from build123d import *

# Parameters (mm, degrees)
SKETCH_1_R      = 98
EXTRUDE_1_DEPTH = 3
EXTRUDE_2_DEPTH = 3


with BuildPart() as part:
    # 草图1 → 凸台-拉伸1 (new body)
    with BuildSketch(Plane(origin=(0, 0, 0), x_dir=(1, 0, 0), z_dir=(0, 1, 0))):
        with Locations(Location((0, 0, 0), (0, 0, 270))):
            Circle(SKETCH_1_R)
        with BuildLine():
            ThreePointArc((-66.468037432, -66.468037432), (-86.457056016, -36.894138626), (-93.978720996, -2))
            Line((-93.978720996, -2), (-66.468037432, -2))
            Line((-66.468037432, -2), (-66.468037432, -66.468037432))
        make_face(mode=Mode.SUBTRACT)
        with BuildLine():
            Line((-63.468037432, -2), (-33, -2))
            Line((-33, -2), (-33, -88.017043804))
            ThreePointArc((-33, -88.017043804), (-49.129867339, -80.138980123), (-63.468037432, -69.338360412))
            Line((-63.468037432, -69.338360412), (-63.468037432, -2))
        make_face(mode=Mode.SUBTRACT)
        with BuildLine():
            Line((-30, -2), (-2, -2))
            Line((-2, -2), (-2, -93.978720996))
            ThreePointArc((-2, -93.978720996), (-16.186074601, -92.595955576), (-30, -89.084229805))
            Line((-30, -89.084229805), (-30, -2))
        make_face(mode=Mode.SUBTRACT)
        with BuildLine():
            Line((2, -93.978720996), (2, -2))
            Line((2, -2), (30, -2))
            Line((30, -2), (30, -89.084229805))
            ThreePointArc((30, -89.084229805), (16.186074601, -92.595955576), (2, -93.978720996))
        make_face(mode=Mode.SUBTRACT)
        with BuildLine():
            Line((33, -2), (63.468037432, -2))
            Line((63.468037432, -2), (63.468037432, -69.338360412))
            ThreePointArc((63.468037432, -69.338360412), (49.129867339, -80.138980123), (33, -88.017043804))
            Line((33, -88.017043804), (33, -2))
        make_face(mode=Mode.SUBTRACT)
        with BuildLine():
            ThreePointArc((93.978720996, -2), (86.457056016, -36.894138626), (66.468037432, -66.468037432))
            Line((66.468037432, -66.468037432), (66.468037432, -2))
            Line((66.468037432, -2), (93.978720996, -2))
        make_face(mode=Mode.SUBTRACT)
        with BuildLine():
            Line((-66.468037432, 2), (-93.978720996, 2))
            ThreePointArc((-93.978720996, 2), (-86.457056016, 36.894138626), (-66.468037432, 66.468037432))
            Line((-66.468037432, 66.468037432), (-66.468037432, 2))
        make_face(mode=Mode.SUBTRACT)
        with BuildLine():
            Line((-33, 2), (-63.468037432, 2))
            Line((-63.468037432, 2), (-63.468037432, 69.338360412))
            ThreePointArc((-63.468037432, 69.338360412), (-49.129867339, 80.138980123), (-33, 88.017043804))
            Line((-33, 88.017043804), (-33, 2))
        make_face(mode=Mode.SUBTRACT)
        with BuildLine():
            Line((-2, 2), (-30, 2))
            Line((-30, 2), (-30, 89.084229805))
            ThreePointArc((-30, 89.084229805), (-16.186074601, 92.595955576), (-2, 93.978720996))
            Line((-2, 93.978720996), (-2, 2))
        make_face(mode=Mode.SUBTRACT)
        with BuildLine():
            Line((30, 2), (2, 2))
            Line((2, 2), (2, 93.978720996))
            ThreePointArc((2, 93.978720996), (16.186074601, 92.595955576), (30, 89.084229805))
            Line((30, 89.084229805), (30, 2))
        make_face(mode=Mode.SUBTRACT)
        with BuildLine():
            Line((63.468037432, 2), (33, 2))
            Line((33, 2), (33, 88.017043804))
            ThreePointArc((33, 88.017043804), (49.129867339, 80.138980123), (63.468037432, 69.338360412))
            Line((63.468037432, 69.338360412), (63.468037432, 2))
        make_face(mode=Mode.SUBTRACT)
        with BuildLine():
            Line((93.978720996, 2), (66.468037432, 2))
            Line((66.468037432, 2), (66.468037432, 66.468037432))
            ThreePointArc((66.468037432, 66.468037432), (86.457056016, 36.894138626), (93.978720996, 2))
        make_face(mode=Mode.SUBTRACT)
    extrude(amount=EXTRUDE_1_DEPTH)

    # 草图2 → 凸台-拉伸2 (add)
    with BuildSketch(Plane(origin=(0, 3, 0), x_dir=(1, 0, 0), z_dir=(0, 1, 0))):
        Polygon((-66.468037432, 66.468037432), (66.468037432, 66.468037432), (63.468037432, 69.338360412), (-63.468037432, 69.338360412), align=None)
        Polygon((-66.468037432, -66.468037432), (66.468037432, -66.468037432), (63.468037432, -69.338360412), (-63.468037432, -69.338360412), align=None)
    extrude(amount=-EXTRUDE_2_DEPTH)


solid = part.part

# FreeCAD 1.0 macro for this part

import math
import FreeCAD as App
import Part
import Sketcher


def add_polygon(sketch, points):
    """Adds a closed chain of lines whose ends are joined by coincident constraints."""
    first, n = sketch.GeometryCount, len(points)
    for a, b in zip(points, points[1:] + points[:1]):
        sketch.addGeometry(Part.LineSegment(App.Vector(*a, 0), App.Vector(*b, 0)), False)
    for i in range(n):
        sketch.addConstraint(Sketcher.Constraint("Coincident", first + i, 2, first + (i + 1) % n, 1))

doc = App.newDocument("Part")
params = doc.addObject("Spreadsheet::Sheet", "Params")
for row, (alias, value) in enumerate([
    ("sketch1_diameter", "196 mm"),
    ("sketch1_radius", "94 mm"),
    ("sketch1_width", "28 mm"),
    ("pad1_length", "3 mm"),
    ("pad2_length", "3 mm"),
], start=1):
    params.set(f"A{row}", alias)
    params.set(f"B{row}", "=" + value)
    params.setAlias(f"B{row}", alias)

body = doc.addObject("PartDesign::Body", "Body")

sketch1 = doc.addObject("Sketcher::SketchObject", "Sketch")
body.addObject(sketch1)
sketch1.AttachmentSupport = (doc.XZ_Plane, [""])
sketch1.MapMode = "FlatFace"
sketch1.addGeometry(Part.Circle(App.Vector(0, 0, 0), App.Vector(0, 0, 1), 98), False)
sketch1.addGeometry(Part.LineSegment(App.Vector(-66, -66, 0), App.Vector(-66, -2, 0)), False)
sketch1.addGeometry(Part.LineSegment(App.Vector(-66, -2, 0), App.Vector(-94, -2, 0)), False)
sketch1.addGeometry(Part.ArcOfCircle(Part.Circle(App.Vector(0, 0, 0), App.Vector(0, 0, 1), 94), math.radians(-179), math.radians(-135)), False)
sketch1.addGeometry(Part.LineSegment(App.Vector(-33, -88, 0), App.Vector(-33, -2, 0)), False)
sketch1.addGeometry(Part.LineSegment(App.Vector(-33, -2, 0), App.Vector(-63, -2, 0)), False)
sketch1.addGeometry(Part.LineSegment(App.Vector(-63, -2, 0), App.Vector(-63, -69, 0)), False)
sketch1.addGeometry(Part.ArcOfCircle(Part.Circle(App.Vector(0, 0, 0), App.Vector(0, 0, 1), 94), math.radians(-132), math.radians(-111)), False)
sketch1.addGeometry(Part.LineSegment(App.Vector(-2, -94, 0), App.Vector(-2, -2, 0)), False)
sketch1.addGeometry(Part.LineSegment(App.Vector(-2, -2, 0), App.Vector(-30, -2, 0)), False)
sketch1.addGeometry(Part.LineSegment(App.Vector(-30, -2, 0), App.Vector(-30, -89, 0)), False)
sketch1.addGeometry(Part.ArcOfCircle(Part.Circle(App.Vector(0, 0, 0), App.Vector(0, 0, 1), 94), math.radians(-108.61), math.radians(-91.22)), False)
sketch1.addGeometry(Part.LineSegment(App.Vector(-66, 2, 0), App.Vector(-66, 66, 0)), False)
sketch1.addGeometry(Part.ArcOfCircle(Part.Circle(App.Vector(0, 0, 0), App.Vector(0, 0, 1), 94), math.radians(135), math.radians(179)), False)
sketch1.addGeometry(Part.LineSegment(App.Vector(-94, 2, 0), App.Vector(-66, 2, 0)), False)
sketch1.addGeometry(Part.LineSegment(App.Vector(-63, 69, 0), App.Vector(-63, 2, 0)), False)
sketch1.addGeometry(Part.LineSegment(App.Vector(-63, 2, 0), App.Vector(-33, 2, 0)), False)
sketch1.addGeometry(Part.LineSegment(App.Vector(-33, 2, 0), App.Vector(-33, 88, 0)), False)
sketch1.addGeometry(Part.ArcOfCircle(Part.Circle(App.Vector(0, 0, 0), App.Vector(0, 0, 1), 94), math.radians(111), math.radians(132)), False)
sketch1.addGeometry(Part.LineSegment(App.Vector(-30, 89, 0), App.Vector(-30, 2, 0)), False)
sketch1.addGeometry(Part.LineSegment(App.Vector(-30, 2, 0), App.Vector(-2, 2, 0)), False)
sketch1.addGeometry(Part.LineSegment(App.Vector(-2, 2, 0), App.Vector(-2, 94, 0)), False)
sketch1.addGeometry(Part.ArcOfCircle(Part.Circle(App.Vector(0, 0, 0), App.Vector(0, 0, 1), 94), math.radians(91.22), math.radians(108.61)), False)
sketch1.addGeometry(Part.LineSegment(App.Vector(30, -89, 0), App.Vector(30, -2, 0)), False)
sketch1.addGeometry(Part.LineSegment(App.Vector(30, -2, 0), App.Vector(2, -2, 0)), False)
sketch1.addGeometry(Part.LineSegment(App.Vector(2, -2, 0), App.Vector(2, -94, 0)), False)
sketch1.addGeometry(Part.ArcOfCircle(Part.Circle(App.Vector(0, 0, 0), App.Vector(0, 0, 1), 94), math.radians(-88.78), math.radians(-71.39)), False)
sketch1.addGeometry(Part.LineSegment(App.Vector(63, -69, 0), App.Vector(63, -2, 0)), False)
sketch1.addGeometry(Part.LineSegment(App.Vector(63, -2, 0), App.Vector(33, -2, 0)), False)
sketch1.addGeometry(Part.LineSegment(App.Vector(33, -2, 0), App.Vector(33, -88, 0)), False)
sketch1.addGeometry(Part.ArcOfCircle(Part.Circle(App.Vector(0, 0, 0), App.Vector(0, 0, 1), 94), math.radians(-69), math.radians(-48)), False)
sketch1.addGeometry(Part.ArcOfCircle(Part.Circle(App.Vector(0, 0, 0), App.Vector(0, 0, 1), 94), math.radians(-45), math.radians(-1)), False)
sketch1.addGeometry(Part.LineSegment(App.Vector(94, -2, 0), App.Vector(66, -2, 0)), False)
sketch1.addGeometry(Part.LineSegment(App.Vector(66, -2, 0), App.Vector(66, -66, 0)), False)
sketch1.addGeometry(Part.ArcOfCircle(Part.Circle(App.Vector(0, 0, 0), App.Vector(0, 0, 1), 94), math.radians(71.39), math.radians(88.78)), False)
sketch1.addGeometry(Part.LineSegment(App.Vector(2, 94, 0), App.Vector(2, 2, 0)), False)
sketch1.addGeometry(Part.LineSegment(App.Vector(2, 2, 0), App.Vector(30, 2, 0)), False)
sketch1.addGeometry(Part.LineSegment(App.Vector(30, 2, 0), App.Vector(30, 89, 0)), False)
sketch1.addGeometry(Part.LineSegment(App.Vector(33, 88, 0), App.Vector(33, 2, 0)), False)
sketch1.addGeometry(Part.LineSegment(App.Vector(33, 2, 0), App.Vector(63, 2, 0)), False)
sketch1.addGeometry(Part.LineSegment(App.Vector(63, 2, 0), App.Vector(63, 69, 0)), False)
sketch1.addGeometry(Part.ArcOfCircle(Part.Circle(App.Vector(0, 0, 0), App.Vector(0, 0, 1), 94), math.radians(48), math.radians(69)), False)
sketch1.addGeometry(Part.LineSegment(App.Vector(66, 2, 0), App.Vector(94, 2, 0)), False)
sketch1.addGeometry(Part.ArcOfCircle(Part.Circle(App.Vector(0, 0, 0), App.Vector(0, 0, 1), 94), math.radians(1), math.radians(45)), False)
sketch1.addGeometry(Part.LineSegment(App.Vector(66, 66, 0), App.Vector(66, 2, 0)), False)
sketch1.addConstraint(Sketcher.Constraint("Coincident", 1, 2, 2, 1))
sketch1.addConstraint(Sketcher.Constraint("Coincident", 2, 2, 3, 1))
sketch1.addConstraint(Sketcher.Constraint("Coincident", 3, 2, 1, 1))
sketch1.addConstraint(Sketcher.Constraint("Coincident", 4, 2, 5, 1))
sketch1.addConstraint(Sketcher.Constraint("Coincident", 5, 2, 6, 1))
sketch1.addConstraint(Sketcher.Constraint("Coincident", 6, 2, 7, 1))
sketch1.addConstraint(Sketcher.Constraint("Coincident", 7, 2, 4, 1))
sketch1.addConstraint(Sketcher.Constraint("Coincident", 8, 2, 9, 1))
sketch1.addConstraint(Sketcher.Constraint("Coincident", 9, 2, 10, 1))
sketch1.addConstraint(Sketcher.Constraint("Coincident", 10, 2, 11, 1))
sketch1.addConstraint(Sketcher.Constraint("Coincident", 11, 2, 8, 1))
sketch1.addConstraint(Sketcher.Constraint("Coincident", 12, 2, 13, 1))
sketch1.addConstraint(Sketcher.Constraint("Coincident", 13, 2, 14, 1))
sketch1.addConstraint(Sketcher.Constraint("Coincident", 14, 2, 12, 1))
sketch1.addConstraint(Sketcher.Constraint("Coincident", 15, 2, 16, 1))
sketch1.addConstraint(Sketcher.Constraint("Coincident", 16, 2, 17, 1))
sketch1.addConstraint(Sketcher.Constraint("Coincident", 17, 2, 18, 1))
sketch1.addConstraint(Sketcher.Constraint("Coincident", 18, 2, 15, 1))
sketch1.addConstraint(Sketcher.Constraint("Coincident", 19, 2, 20, 1))
sketch1.addConstraint(Sketcher.Constraint("Coincident", 20, 2, 21, 1))
sketch1.addConstraint(Sketcher.Constraint("Coincident", 21, 2, 22, 1))
sketch1.addConstraint(Sketcher.Constraint("Coincident", 22, 2, 19, 1))
sketch1.addConstraint(Sketcher.Constraint("Coincident", 23, 2, 24, 1))
sketch1.addConstraint(Sketcher.Constraint("Coincident", 24, 2, 25, 1))
sketch1.addConstraint(Sketcher.Constraint("Coincident", 25, 2, 26, 1))
sketch1.addConstraint(Sketcher.Constraint("Coincident", 26, 2, 23, 1))
sketch1.addConstraint(Sketcher.Constraint("Coincident", 27, 2, 28, 1))
sketch1.addConstraint(Sketcher.Constraint("Coincident", 28, 2, 29, 1))
sketch1.addConstraint(Sketcher.Constraint("Coincident", 29, 2, 30, 1))
sketch1.addConstraint(Sketcher.Constraint("Coincident", 30, 2, 27, 1))
sketch1.addConstraint(Sketcher.Constraint("Coincident", 31, 2, 32, 1))
sketch1.addConstraint(Sketcher.Constraint("Coincident", 32, 2, 33, 1))
sketch1.addConstraint(Sketcher.Constraint("Coincident", 33, 2, 31, 1))
sketch1.addConstraint(Sketcher.Constraint("Coincident", 34, 2, 35, 1))
sketch1.addConstraint(Sketcher.Constraint("Coincident", 35, 2, 36, 1))
sketch1.addConstraint(Sketcher.Constraint("Coincident", 36, 2, 37, 1))
sketch1.addConstraint(Sketcher.Constraint("Coincident", 37, 2, 34, 1))
sketch1.addConstraint(Sketcher.Constraint("Coincident", 38, 2, 39, 1))
sketch1.addConstraint(Sketcher.Constraint("Coincident", 39, 2, 40, 1))
sketch1.addConstraint(Sketcher.Constraint("Coincident", 40, 2, 41, 1))
sketch1.addConstraint(Sketcher.Constraint("Coincident", 41, 2, 38, 1))
sketch1.addConstraint(Sketcher.Constraint("Coincident", 42, 2, 43, 1))
sketch1.addConstraint(Sketcher.Constraint("Coincident", 43, 2, 44, 1))
sketch1.addConstraint(Sketcher.Constraint("Coincident", 44, 2, 42, 1))
sketch1.addConstraint(Sketcher.Constraint("Vertical", 1))
sketch1.addConstraint(Sketcher.Constraint("Horizontal", 2))
sketch1.addConstraint(Sketcher.Constraint("Vertical", 4))
sketch1.addConstraint(Sketcher.Constraint("Horizontal", 5))
sketch1.addConstraint(Sketcher.Constraint("Vertical", 6))
sketch1.addConstraint(Sketcher.Constraint("Vertical", 8))
sketch1.addConstraint(Sketcher.Constraint("Horizontal", 9))
sketch1.addConstraint(Sketcher.Constraint("Vertical", 10))
sketch1.addConstraint(Sketcher.Constraint("Vertical", 12))
sketch1.addConstraint(Sketcher.Constraint("Horizontal", 14))
sketch1.addConstraint(Sketcher.Constraint("Vertical", 15))
sketch1.addConstraint(Sketcher.Constraint("Horizontal", 16))
sketch1.addConstraint(Sketcher.Constraint("Vertical", 17))
sketch1.addConstraint(Sketcher.Constraint("Vertical", 19))
sketch1.addConstraint(Sketcher.Constraint("Horizontal", 20))
sketch1.addConstraint(Sketcher.Constraint("Vertical", 21))
sketch1.addConstraint(Sketcher.Constraint("Vertical", 23))
sketch1.addConstraint(Sketcher.Constraint("Horizontal", 24))
sketch1.addConstraint(Sketcher.Constraint("Vertical", 25))
sketch1.addConstraint(Sketcher.Constraint("Vertical", 27))
sketch1.addConstraint(Sketcher.Constraint("Horizontal", 28))
sketch1.addConstraint(Sketcher.Constraint("Vertical", 29))
sketch1.addConstraint(Sketcher.Constraint("Horizontal", 32))
sketch1.addConstraint(Sketcher.Constraint("Vertical", 33))
sketch1.addConstraint(Sketcher.Constraint("Vertical", 35))
sketch1.addConstraint(Sketcher.Constraint("Horizontal", 36))
sketch1.addConstraint(Sketcher.Constraint("Vertical", 37))
sketch1.addConstraint(Sketcher.Constraint("Vertical", 38))
sketch1.addConstraint(Sketcher.Constraint("Horizontal", 39))
sketch1.addConstraint(Sketcher.Constraint("Vertical", 40))
sketch1.addConstraint(Sketcher.Constraint("Horizontal", 42))
sketch1.addConstraint(Sketcher.Constraint("Vertical", 44))
sketch1.addConstraint(Sketcher.Constraint("Coincident", 0, 3, -1, 1))
sketch1.addConstraint(Sketcher.Constraint("Coincident", 3, 3, -1, 1))
sketch1.addConstraint(Sketcher.Constraint("Coincident", 7, 3, -1, 1))
sketch1.addConstraint(Sketcher.Constraint("Coincident", 11, 3, -1, 1))
sketch1.addConstraint(Sketcher.Constraint("Coincident", 13, 3, -1, 1))
sketch1.addConstraint(Sketcher.Constraint("Coincident", 18, 3, -1, 1))
sketch1.addConstraint(Sketcher.Constraint("Coincident", 22, 3, -1, 1))
sketch1.addConstraint(Sketcher.Constraint("Coincident", 26, 3, -1, 1))
sketch1.addConstraint(Sketcher.Constraint("Coincident", 30, 3, -1, 1))
sketch1.addConstraint(Sketcher.Constraint("Coincident", 31, 3, -1, 1))
sketch1.addConstraint(Sketcher.Constraint("Coincident", 34, 3, -1, 1))
sketch1.addConstraint(Sketcher.Constraint("Coincident", 41, 3, -1, 1))
sketch1.addConstraint(Sketcher.Constraint("Coincident", 43, 3, -1, 1))
sketch1.addConstraint(Sketcher.Constraint("Equal", 3, 7))
sketch1.addConstraint(Sketcher.Constraint("Equal", 7, 11))
sketch1.addConstraint(Sketcher.Constraint("Equal", 11, 13))
sketch1.addConstraint(Sketcher.Constraint("Equal", 13, 18))
sketch1.addConstraint(Sketcher.Constraint("Equal", 18, 22))
sketch1.addConstraint(Sketcher.Constraint("Equal", 22, 26))
sketch1.addConstraint(Sketcher.Constraint("Equal", 26, 30))
sketch1.addConstraint(Sketcher.Constraint("Equal", 30, 31))
sketch1.addConstraint(Sketcher.Constraint("Equal", 31, 34))
sketch1.addConstraint(Sketcher.Constraint("Equal", 34, 41))
sketch1.addConstraint(Sketcher.Constraint("Equal", 41, 43))
sketch1.addConstraint(Sketcher.Constraint("Symmetric", 19, 2, 23, 2, -1, 1))
sketch1.addConstraint(Sketcher.Constraint("Symmetric", 15, 2, 27, 2, -1, 1))
sketch1.addConstraint(Sketcher.Constraint("Symmetric", 14, 2, 32, 2, -1, 1))
sketch1.addConstraint(Sketcher.Constraint("Symmetric", 8, 2, 35, 2, -1, 1))
sketch1.addConstraint(Sketcher.Constraint("Symmetric", 4, 2, 38, 2, -1, 1))
sketch1.addConstraint(Sketcher.Constraint("Symmetric", 1, 2, 44, 2, -1, 1))
sketch1.addConstraint(Sketcher.Constraint("Symmetric", 9, 2, 23, 2, -2))
sketch1.addConstraint(Sketcher.Constraint("Symmetric", 5, 2, 27, 2, -2))
sketch1.addConstraint(Sketcher.Constraint("Symmetric", 1, 2, 32, 2, -2))
sketch1.addConstraint(Sketcher.Constraint("Horizontal", 2, 2, 4, 2))
sketch1.addConstraint(Sketcher.Constraint("Horizontal", 5, 2, 8, 2))
sketch1.addConstraint(Sketcher.Constraint("Horizontal", 11, 2, 25, 2))
sketch1.addConstraint(Sketcher.Constraint("Horizontal", 7, 2, 29, 2))
sketch1.addConstraint(Sketcher.Constraint("Horizontal", 21, 2, 34, 2))
sketch1.addConstraint(Sketcher.Constraint("Horizontal", 22, 2, 37, 2))
sketch1.addConstraint(Sketcher.Constraint("Horizontal", 18, 2, 40, 2))
sketch1.addConstraint(Sketcher.Constraint("Horizontal", 17, 2, 41, 2))
sketch1.addConstraint(Sketcher.Constraint("Diameter", 0, 196.0))
sketch1.addConstraint(Sketcher.Constraint("Radius", 3, 94.0))
sketch1.addConstraint(Sketcher.Constraint("DistanceX", 9, 2, 9, 1, 28.0))
sketch1.addConstraint(Sketcher.Constraint("DistanceY", 1, 2, -1, 1, 2.0))
sketch1.addConstraint(Sketcher.Constraint("DistanceX", 4, 2, -1, 1, 33.0))
sketch1.addConstraint(Sketcher.Constraint("DistanceX", 8, 2, -1, 1, 2.0))
sketch1.addConstraint(Sketcher.Constraint("DistanceX", 1, 2, 5, 2, 3.0))
sketch1.addConstraint(Sketcher.Constraint("DistanceY", 6, 2, 6, 1, 67.33836))
sketch1.setExpression("Constraints[117]", "Params.sketch1_diameter")
sketch1.setExpression("Constraints[118]", "Params.sketch1_radius")
sketch1.setExpression("Constraints[119]", "Params.sketch1_width")
pad1 = doc.addObject("PartDesign::Pad", "Pad")
body.addObject(pad1)
pad1.Profile = sketch1
pad1.setExpression("Length", "Params.pad1_length")
pad1.Reversed = True

sketch2 = doc.addObject("Sketcher::SketchObject", "Sketch001")
body.addObject(sketch2)
sketch2.AttachmentSupport = (doc.XZ_Plane, [""])
sketch2.MapMode = "FlatFace"
sketch2.AttachmentOffset = App.Placement(App.Vector(0, 0, -3), App.Rotation())
add_polygon(sketch2, [(-66.5, -66.5), (66.5, -66.5), (63.5, -69.3), (-63.5, -69.3)])
add_polygon(sketch2, [(66.5, 66.5), (-66.5, 66.5), (-63.5, 69.3), (63.5, 69.3)])
sketch2.addConstraint(Sketcher.Constraint("Horizontal", 0))
sketch2.addConstraint(Sketcher.Constraint("Horizontal", 2))
sketch2.addConstraint(Sketcher.Constraint("Horizontal", 4))
sketch2.addConstraint(Sketcher.Constraint("Horizontal", 6))
sketch2.addConstraint(Sketcher.Constraint("Symmetric", 0, 2, 4, 2, -1, 1))
sketch2.addConstraint(Sketcher.Constraint("Symmetric", 1, 2, 5, 2, -1, 1))
sketch2.addConstraint(Sketcher.Constraint("Parallel", 3, 7))
sketch2.addConstraint(Sketcher.Constraint("Vertical", 3, 2, 4, 2))
sketch2.addConstraint(Sketcher.Constraint("Vertical", 2, 2, 5, 2))
sketch2.addConstraint(Sketcher.Constraint("Vertical", 1, 2, 6, 2))
sketch2.addConstraint(Sketcher.Constraint("DistanceX", 1, 2, 0, 2, 3.0))
sketch2.addConstraint(Sketcher.Constraint("DistanceX", 0, 1, 0, 2, 132.936075))
sketch2.addConstraint(Sketcher.Constraint("DistanceY", 1, 2, -1, 1, 69.33836))
sketch2.addConstraint(Sketcher.Constraint("Distance", 1, 4.151958))
pad2 = doc.addObject("PartDesign::Pad", "Pad001")
body.addObject(pad2)
pad2.Profile = sketch2
pad2.setExpression("Length", "Params.pad2_length")

doc.recompute()
